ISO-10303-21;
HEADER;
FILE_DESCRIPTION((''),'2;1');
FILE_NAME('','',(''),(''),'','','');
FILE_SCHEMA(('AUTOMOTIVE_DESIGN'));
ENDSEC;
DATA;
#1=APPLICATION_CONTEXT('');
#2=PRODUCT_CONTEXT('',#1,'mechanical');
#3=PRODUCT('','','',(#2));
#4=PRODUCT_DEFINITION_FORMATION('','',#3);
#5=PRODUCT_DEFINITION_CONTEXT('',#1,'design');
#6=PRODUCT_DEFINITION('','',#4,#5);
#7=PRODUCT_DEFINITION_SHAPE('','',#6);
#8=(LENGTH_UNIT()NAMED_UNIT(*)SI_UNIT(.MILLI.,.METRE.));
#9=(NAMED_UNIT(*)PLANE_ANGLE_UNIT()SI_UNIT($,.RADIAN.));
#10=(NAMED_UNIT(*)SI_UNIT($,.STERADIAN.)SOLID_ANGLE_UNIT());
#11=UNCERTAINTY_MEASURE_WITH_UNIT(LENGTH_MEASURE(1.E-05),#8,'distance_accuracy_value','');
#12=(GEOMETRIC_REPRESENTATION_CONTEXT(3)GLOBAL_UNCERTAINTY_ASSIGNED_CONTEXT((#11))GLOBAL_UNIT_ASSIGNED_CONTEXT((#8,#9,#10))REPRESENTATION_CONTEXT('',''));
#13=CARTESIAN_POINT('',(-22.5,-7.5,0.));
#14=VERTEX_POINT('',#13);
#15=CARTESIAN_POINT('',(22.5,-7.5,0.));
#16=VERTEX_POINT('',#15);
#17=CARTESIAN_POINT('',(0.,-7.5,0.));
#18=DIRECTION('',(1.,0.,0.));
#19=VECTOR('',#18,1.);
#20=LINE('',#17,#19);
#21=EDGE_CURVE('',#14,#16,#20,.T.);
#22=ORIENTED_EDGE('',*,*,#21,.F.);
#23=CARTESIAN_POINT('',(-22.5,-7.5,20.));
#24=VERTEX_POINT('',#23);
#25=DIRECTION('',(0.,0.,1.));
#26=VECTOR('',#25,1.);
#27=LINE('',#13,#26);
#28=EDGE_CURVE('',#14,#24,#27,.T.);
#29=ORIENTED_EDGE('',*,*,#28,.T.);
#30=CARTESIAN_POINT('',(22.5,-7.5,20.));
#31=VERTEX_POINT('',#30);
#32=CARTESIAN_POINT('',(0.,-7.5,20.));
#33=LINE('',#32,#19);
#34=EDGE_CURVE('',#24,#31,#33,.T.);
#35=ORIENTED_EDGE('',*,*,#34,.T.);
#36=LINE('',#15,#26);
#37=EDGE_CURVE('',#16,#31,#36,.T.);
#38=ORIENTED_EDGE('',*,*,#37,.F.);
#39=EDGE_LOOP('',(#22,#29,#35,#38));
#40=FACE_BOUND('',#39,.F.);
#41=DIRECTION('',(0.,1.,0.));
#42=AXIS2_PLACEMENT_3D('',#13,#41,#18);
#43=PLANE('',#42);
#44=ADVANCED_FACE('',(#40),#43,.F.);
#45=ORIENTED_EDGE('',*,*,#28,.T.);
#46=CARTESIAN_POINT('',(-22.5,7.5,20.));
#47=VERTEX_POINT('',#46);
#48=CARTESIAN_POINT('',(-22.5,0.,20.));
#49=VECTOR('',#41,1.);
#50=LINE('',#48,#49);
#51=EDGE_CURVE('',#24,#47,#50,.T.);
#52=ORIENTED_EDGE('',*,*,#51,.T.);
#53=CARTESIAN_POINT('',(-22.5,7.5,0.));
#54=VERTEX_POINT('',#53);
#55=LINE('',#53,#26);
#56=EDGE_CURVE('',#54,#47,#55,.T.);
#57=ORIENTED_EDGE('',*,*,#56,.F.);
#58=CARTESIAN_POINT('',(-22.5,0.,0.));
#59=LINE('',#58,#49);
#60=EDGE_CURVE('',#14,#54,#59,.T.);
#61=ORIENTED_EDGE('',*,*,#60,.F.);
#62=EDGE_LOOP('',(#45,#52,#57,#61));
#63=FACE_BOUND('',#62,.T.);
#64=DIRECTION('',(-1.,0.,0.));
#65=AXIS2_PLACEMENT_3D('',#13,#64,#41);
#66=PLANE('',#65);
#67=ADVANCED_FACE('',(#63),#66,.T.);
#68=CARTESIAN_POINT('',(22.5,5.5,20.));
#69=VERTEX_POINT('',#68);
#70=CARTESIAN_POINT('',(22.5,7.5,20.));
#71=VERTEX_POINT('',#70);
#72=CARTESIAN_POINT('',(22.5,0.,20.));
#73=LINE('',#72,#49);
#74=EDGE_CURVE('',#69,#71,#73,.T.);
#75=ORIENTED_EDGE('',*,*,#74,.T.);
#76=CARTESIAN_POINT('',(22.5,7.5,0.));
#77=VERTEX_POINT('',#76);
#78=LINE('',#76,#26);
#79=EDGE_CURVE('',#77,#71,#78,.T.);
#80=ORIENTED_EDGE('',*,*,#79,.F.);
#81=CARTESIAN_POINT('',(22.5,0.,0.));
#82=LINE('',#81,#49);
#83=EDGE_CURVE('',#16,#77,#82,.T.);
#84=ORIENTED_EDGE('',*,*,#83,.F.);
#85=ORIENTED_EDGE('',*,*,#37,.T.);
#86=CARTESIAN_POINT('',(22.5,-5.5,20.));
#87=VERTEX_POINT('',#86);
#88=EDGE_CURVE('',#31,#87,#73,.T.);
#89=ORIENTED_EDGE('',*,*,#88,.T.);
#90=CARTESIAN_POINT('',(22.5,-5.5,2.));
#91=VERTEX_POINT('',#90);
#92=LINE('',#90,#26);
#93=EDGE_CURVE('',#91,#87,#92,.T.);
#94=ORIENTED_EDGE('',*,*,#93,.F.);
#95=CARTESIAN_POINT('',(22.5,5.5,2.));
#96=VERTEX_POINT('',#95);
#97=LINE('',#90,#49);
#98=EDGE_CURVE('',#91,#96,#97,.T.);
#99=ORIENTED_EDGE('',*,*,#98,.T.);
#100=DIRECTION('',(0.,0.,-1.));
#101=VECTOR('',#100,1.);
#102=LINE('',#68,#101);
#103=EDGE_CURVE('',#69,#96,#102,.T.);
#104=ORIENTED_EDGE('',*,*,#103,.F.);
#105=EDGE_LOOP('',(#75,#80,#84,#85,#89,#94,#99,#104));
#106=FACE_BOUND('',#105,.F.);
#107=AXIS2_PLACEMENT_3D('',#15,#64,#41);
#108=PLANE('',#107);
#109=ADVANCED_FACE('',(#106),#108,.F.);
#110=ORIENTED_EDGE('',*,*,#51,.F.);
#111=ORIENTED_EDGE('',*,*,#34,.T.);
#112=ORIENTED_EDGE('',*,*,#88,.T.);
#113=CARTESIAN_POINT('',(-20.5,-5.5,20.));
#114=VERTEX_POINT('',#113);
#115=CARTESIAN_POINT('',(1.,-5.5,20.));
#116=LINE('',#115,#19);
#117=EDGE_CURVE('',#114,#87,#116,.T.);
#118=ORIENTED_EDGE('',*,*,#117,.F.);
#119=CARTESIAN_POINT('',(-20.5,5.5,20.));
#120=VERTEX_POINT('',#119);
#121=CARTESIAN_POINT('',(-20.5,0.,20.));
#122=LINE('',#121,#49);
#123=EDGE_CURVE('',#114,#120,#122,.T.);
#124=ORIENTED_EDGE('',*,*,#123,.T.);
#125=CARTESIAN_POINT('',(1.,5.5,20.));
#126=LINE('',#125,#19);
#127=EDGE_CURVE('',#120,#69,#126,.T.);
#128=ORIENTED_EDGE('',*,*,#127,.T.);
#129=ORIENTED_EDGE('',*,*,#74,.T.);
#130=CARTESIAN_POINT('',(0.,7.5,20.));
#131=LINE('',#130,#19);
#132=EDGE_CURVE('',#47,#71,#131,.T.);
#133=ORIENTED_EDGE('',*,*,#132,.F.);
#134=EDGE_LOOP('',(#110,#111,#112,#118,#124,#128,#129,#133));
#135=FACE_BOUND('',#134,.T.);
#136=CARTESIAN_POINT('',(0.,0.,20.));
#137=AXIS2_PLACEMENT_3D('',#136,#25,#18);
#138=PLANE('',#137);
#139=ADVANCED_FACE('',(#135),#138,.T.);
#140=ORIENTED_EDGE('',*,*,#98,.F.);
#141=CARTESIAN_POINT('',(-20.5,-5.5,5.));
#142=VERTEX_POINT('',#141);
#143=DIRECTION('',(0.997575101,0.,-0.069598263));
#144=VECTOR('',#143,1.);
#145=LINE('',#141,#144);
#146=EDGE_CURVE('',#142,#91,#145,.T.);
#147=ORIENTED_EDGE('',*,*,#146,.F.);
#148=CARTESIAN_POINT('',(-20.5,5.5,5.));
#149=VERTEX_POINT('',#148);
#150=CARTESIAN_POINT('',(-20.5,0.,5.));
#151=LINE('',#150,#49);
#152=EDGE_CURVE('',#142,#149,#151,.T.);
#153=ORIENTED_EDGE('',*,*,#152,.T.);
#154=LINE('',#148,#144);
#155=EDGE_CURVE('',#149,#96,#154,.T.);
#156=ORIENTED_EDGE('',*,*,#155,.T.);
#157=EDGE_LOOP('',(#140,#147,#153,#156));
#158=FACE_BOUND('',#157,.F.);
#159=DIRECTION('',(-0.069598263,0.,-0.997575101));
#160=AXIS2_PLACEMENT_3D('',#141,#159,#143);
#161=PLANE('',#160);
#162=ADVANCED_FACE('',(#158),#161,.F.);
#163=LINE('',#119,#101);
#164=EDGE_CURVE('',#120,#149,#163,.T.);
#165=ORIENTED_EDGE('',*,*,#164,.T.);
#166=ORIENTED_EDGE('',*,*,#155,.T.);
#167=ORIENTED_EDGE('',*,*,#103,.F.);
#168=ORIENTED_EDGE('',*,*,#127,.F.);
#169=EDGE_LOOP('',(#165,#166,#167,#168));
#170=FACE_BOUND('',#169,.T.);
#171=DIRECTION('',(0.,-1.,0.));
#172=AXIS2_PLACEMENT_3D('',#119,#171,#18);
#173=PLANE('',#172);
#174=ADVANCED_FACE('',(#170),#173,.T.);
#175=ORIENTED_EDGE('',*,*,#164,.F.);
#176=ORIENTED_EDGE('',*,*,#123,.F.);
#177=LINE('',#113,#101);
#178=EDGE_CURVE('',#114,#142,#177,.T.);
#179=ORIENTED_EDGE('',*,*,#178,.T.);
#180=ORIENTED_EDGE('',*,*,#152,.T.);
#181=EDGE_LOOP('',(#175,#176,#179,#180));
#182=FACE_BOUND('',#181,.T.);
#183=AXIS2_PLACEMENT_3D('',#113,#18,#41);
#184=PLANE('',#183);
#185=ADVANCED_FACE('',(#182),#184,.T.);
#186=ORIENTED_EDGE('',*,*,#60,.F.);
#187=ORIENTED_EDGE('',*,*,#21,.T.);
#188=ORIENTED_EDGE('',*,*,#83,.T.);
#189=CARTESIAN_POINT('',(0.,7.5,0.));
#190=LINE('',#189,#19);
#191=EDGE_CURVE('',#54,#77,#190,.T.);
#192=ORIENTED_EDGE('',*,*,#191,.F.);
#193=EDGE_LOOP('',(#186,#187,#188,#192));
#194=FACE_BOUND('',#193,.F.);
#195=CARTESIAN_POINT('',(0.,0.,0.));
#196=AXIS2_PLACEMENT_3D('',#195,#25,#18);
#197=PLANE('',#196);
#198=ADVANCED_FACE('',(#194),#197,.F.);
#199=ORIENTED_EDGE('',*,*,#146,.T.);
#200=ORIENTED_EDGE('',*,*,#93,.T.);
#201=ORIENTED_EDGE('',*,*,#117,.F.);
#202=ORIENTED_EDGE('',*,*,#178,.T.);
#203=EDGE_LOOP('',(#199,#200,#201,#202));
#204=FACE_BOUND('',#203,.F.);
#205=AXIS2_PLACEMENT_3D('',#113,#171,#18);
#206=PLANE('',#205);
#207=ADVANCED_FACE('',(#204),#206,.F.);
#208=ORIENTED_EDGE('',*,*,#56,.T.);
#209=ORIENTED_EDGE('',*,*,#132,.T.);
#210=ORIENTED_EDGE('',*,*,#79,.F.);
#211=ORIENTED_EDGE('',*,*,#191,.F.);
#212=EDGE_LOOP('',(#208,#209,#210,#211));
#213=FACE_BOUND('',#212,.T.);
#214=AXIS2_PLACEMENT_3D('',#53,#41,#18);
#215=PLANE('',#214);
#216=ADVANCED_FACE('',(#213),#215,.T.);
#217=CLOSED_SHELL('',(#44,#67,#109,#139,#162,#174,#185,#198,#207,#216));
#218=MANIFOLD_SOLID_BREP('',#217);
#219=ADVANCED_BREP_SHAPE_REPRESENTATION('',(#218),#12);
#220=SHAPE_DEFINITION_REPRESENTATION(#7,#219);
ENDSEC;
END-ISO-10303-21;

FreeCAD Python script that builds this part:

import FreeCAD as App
import Part
import Sketcher

V = App.Vector
Q = App.Units.Quantity

doc = App.newDocument("Part")
params = doc.addObject("Spreadsheet::Sheet", "Params")
for row, (alias, value) in enumerate([
    ("sketch1_width", "45 mm"),
    ("sketch1_height", "15 mm"),
    ("pad1_length", "20 mm"),
    ("sketch2_width", "43 mm"),
    ("sketch2_height", "11 mm"),
    ("pocket1_length", "15 mm"),
    ("sketch3_width", "43 mm"),
    ("sketch3_height", "3 mm"),
    ("pocket2_length", "11 mm"),
], start=1):
    params.set(f"A{row}", alias)
    params.set(f"B{row}", "=" + value)
    params.setAlias(f"B{row}", alias)

body = doc.addObject("PartDesign::Body", "Body")

# Sketch on XY plane
sketch1 = doc.addObject("Sketcher::SketchObject", "Sketch")
body.addObject(sketch1)
sketch1.AttachmentSupport = (doc.XY_Plane, [""])
sketch1.MapMode = "FlatFace"
sketch1.addGeometry([
    Part.LineSegment(V(-22, 8, 0), V(-22, -8, 0)),
    Part.LineSegment(V(-22, -8, 0), V(22, -8, 0)),
    Part.LineSegment(V(22, -8, 0), V(22, 8, 0)),
    Part.LineSegment(V(22, 8, 0), V(-22, 8, 0)),
], False)
sketch1.addConstraint([
    Sketcher.Constraint("Coincident", 0, 2, 1, 1),
    Sketcher.Constraint("Coincident", 1, 2, 2, 1),
    Sketcher.Constraint("Coincident", 2, 2, 3, 1),
    Sketcher.Constraint("Coincident", 3, 2, 0, 1),
    Sketcher.Constraint("Vertical", 0),
    Sketcher.Constraint("Horizontal", 1),
    Sketcher.Constraint("Vertical", 2),
    Sketcher.Constraint("Horizontal", 3),
    Sketcher.Constraint("Symmetric", 0, 2, 2, 2, -1, 1),
    Sketcher.Constraint("DistanceX", 1, 1, 1, 2, Q("45 mm")),
    Sketcher.Constraint("DistanceY", 0, 2, 0, 1, Q("15 mm")),
])
sketch1.setExpression("Constraints[9]", "Params.sketch1_width")
sketch1.setExpression("Constraints[10]", "Params.sketch1_height")
pad1 = doc.addObject("PartDesign::Pad", "Pad")
body.addObject(pad1)
pad1.Profile = sketch1
pad1.setExpression("Length", "Params.pad1_length")

# Sketch on XY plane
sketch2 = doc.addObject("Sketcher::SketchObject", "Sketch001")
body.addObject(sketch2)
sketch2.AttachmentSupport = (doc.XY_Plane, [""])
sketch2.MapMode = "FlatFace"
sketch2.AttachmentOffset = App.Placement(V(0, 0, 20), App.Rotation())
sketch2.addGeometry([
    Part.LineSegment(V(-20, 6, 0), V(-20, -6, 0)),
    Part.LineSegment(V(-20, -6, 0), V(22, -6, 0)),
    Part.LineSegment(V(22, -6, 0), V(22, 6, 0)),
    Part.LineSegment(V(22, 6, 0), V(-20, 6, 0)),
], False)
sketch2.addConstraint([
    Sketcher.Constraint("Coincident", 0, 2, 1, 1),
    Sketcher.Constraint("Coincident", 1, 2, 2, 1),
    Sketcher.Constraint("Coincident", 2, 2, 3, 1),
    Sketcher.Constraint("Coincident", 3, 2, 0, 1),
    Sketcher.Constraint("Vertical", 0),
    Sketcher.Constraint("Horizontal", 1),
    Sketcher.Constraint("Vertical", 2),
    Sketcher.Constraint("Horizontal", 3),
    Sketcher.Constraint("DistanceX", 1, 1, 1, 2, Q("43 mm")),
    Sketcher.Constraint("DistanceY", 0, 2, 0, 1, Q("11 mm")),
    Sketcher.Constraint("DistanceX", 0, 2, -1, 1, Q("20.5 mm")),
    Sketcher.Constraint("DistanceY", 0, 2, -1, 1, Q("5.5 mm")),
])
sketch2.setExpression("Constraints[8]", "Params.sketch2_width")
sketch2.setExpression("Constraints[9]", "Params.sketch2_height")
pocket1 = doc.addObject("PartDesign::Pocket", "Pocket")
body.addObject(pocket1)
pocket1.Profile = sketch2
pocket1.setExpression("Length", "Params.pocket1_length")

# Sketch on XZ plane
sketch3 = doc.addObject("Sketcher::SketchObject", "Sketch002")
body.addObject(sketch3)
sketch3.AttachmentSupport = (doc.XZ_Plane, [""])
sketch3.MapMode = "FlatFace"
sketch3.AttachmentOffset = App.Placement(V(0, 0, 5.5), App.Rotation())
sketch3.addGeometry([
    Part.LineSegment(V(22.5, 5, 0), V(-20.5, 5, 0)),
    Part.LineSegment(V(-20.5, 5, 0), V(22.5, 2, 0)),
    Part.LineSegment(V(22.5, 2, 0), V(22.5, 5, 0)),
], False)
sketch3.addConstraint([
    Sketcher.Constraint("Coincident", 0, 2, 1, 1),
    Sketcher.Constraint("Coincident", 1, 2, 2, 1),
    Sketcher.Constraint("Coincident", 2, 2, 0, 1),
    Sketcher.Constraint("Horizontal", 0),
    Sketcher.Constraint("Vertical", 2),
    Sketcher.Constraint("DistanceX", 0, 2, 0, 1, Q("43 mm")),
    Sketcher.Constraint("DistanceY", 2, 1, 2, 2, Q("3 mm")),
    Sketcher.Constraint("DistanceY", -1, 1, 0, 2, Q("5 mm")),
    Sketcher.Constraint("DistanceX", 0, 2, -1, 1, Q("20.5 mm")),
])
sketch3.setExpression("Constraints[5]", "Params.sketch3_width")
sketch3.setExpression("Constraints[6]", "Params.sketch3_height")
pocket2 = doc.addObject("PartDesign::Pocket", "Pocket001")
body.addObject(pocket2)
pocket2.Profile = sketch3
pocket2.setExpression("Length", "Params.pocket2_length")

doc.recompute()
